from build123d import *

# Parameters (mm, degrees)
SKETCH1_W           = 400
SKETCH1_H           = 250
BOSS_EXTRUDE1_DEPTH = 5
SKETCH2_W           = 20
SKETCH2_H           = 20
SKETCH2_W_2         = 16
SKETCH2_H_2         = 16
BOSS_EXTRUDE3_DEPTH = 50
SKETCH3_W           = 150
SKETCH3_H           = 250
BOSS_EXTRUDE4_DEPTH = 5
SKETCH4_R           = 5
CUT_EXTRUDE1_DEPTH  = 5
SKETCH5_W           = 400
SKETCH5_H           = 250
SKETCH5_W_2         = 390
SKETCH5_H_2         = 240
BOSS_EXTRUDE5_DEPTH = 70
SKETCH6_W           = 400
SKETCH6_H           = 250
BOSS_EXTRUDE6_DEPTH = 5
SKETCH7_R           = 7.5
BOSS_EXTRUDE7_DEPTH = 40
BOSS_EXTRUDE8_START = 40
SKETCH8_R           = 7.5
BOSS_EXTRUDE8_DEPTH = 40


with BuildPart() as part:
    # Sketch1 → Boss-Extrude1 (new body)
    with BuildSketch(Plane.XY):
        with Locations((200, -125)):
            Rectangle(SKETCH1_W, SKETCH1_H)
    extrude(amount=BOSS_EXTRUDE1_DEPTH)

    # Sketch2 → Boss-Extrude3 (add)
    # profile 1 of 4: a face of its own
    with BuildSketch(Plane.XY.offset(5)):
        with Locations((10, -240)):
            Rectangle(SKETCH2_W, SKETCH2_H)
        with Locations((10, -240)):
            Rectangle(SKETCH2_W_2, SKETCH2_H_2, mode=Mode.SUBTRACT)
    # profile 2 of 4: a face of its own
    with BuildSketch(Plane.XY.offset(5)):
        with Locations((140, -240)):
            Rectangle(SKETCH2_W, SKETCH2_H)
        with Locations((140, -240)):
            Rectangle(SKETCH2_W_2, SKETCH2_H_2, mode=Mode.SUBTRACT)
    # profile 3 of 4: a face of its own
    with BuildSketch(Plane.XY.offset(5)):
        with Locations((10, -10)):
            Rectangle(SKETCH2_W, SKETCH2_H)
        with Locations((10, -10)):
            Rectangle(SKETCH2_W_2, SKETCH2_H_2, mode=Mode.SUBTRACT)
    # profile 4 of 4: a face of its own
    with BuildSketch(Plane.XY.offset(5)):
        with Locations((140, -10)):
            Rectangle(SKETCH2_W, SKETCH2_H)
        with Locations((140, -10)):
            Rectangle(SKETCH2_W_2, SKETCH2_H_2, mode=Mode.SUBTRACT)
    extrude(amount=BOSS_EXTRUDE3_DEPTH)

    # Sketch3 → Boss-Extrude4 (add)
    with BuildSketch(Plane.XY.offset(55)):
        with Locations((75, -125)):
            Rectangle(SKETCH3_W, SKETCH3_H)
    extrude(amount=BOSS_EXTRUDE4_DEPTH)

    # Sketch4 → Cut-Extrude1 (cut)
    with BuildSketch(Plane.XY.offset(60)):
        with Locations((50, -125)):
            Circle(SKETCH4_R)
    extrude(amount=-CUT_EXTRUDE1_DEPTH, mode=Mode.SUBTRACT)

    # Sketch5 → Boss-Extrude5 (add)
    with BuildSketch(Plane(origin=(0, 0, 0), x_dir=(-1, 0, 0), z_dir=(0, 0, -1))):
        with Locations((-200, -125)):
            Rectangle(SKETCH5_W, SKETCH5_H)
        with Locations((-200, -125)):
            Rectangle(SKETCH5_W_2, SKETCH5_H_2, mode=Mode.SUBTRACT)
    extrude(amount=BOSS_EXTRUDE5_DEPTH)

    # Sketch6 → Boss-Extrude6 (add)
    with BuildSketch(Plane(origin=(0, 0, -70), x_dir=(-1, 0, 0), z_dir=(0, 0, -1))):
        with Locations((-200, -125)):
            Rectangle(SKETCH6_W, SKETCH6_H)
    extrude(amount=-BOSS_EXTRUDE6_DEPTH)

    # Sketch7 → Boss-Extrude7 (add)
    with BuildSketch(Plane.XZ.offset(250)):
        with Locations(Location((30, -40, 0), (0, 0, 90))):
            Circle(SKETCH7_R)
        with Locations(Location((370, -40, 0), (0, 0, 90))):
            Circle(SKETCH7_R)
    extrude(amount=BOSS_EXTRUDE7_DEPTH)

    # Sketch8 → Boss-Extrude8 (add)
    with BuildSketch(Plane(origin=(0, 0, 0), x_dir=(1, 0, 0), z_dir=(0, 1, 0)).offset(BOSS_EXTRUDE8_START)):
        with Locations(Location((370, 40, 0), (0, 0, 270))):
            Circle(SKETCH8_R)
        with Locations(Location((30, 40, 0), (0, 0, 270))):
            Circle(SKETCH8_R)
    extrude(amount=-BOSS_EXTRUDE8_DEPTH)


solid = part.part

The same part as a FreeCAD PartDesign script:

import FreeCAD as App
import Part
import Sketcher


def add_polygon(sketch, points):
    """Adds a closed chain of lines whose ends are joined by coincident constraints."""
    first, n = sketch.GeometryCount, len(points)
    for a, b in zip(points, points[1:] + points[:1]):
        sketch.addGeometry(Part.LineSegment(App.Vector(*a, 0), App.Vector(*b, 0)), False)
    for i in range(n):
        sketch.addConstraint(Sketcher.Constraint("Coincident", first + i, 2, first + (i + 1) % n, 1))

doc = App.newDocument("Part")
body = doc.addObject("PartDesign::Body", "Body")

sketch1 = body.newObject("Sketcher::SketchObject", "Sketch")
sketch1.AttachmentSupport = (doc.getObject("XY_Plane"), [""])
sketch1.MapMode = "FlatFace"
add_polygon(sketch1, [(0, 0), (0, -250), (400, -250), (400, 0)])
sketch1.addConstraint(Sketcher.Constraint("Vertical", 0))
sketch1.addConstraint(Sketcher.Constraint("Horizontal", 1))
sketch1.addConstraint(Sketcher.Constraint("Vertical", 2))
sketch1.addConstraint(Sketcher.Constraint("Horizontal", 3))
sketch1.addConstraint(Sketcher.Constraint("Coincident", 3, 2, -1, 1))
sketch1.addConstraint(Sketcher.Constraint("DistanceX", 1, 1, 1, 2, 400.0))
sketch1.addConstraint(Sketcher.Constraint("DistanceY", 0, 2, 0, 1, 250.0))
pad1 = body.newObject("PartDesign::Pad", "Pad")
pad1.Profile = sketch1
pad1.Length = 5

sketch2 = body.newObject("Sketcher::SketchObject", "Sketch001")
sketch2.AttachmentSupport = (doc.getObject("XY_Plane"), [""])
sketch2.MapMode = "FlatFace"
sketch2.AttachmentOffset = App.Placement(App.Vector(0, 0, 5), App.Rotation())
add_polygon(sketch2, [(0, -230), (0, -250), (20, -250), (20, -230)])
add_polygon(sketch2, [(18, -248), (2, -248), (2, -232), (18, -232)])
add_polygon(sketch2, [(130, -230), (130, -250), (150, -250), (150, -230)])
add_polygon(sketch2, [(148, -248), (132, -248), (132, -232), (148, -232)])
add_polygon(sketch2, [(0, 0), (0, -20), (20, -20), (20, 0)])
add_polygon(sketch2, [(18, -18), (2, -18), (2, -2), (18, -2)])
add_polygon(sketch2, [(130, 0), (130, -20), (150, -20), (150, 0)])
add_polygon(sketch2, [(148, -18), (132, -18), (132, -2), (148, -2)])
sketch2.addConstraint(Sketcher.Constraint("Vertical", 0))
sketch2.addConstraint(Sketcher.Constraint("Horizontal", 1))
sketch2.addConstraint(Sketcher.Constraint("Vertical", 2))
sketch2.addConstraint(Sketcher.Constraint("Horizontal", 3))
sketch2.addConstraint(Sketcher.Constraint("Horizontal", 4))
sketch2.addConstraint(Sketcher.Constraint("Vertical", 5))
sketch2.addConstraint(Sketcher.Constraint("Horizontal", 6))
sketch2.addConstraint(Sketcher.Constraint("Vertical", 7))
sketch2.addConstraint(Sketcher.Constraint("Vertical", 8))
sketch2.addConstraint(Sketcher.Constraint("Horizontal", 9))
sketch2.addConstraint(Sketcher.Constraint("Vertical", 10))
sketch2.addConstraint(Sketcher.Constraint("Horizontal", 11))
sketch2.addConstraint(Sketcher.Constraint("Horizontal", 12))
sketch2.addConstraint(Sketcher.Constraint("Vertical", 13))
sketch2.addConstraint(Sketcher.Constraint("Horizontal", 14))
sketch2.addConstraint(Sketcher.Constraint("Vertical", 15))
sketch2.addConstraint(Sketcher.Constraint("Vertical", 16))
sketch2.addConstraint(Sketcher.Constraint("Horizontal", 17))
sketch2.addConstraint(Sketcher.Constraint("Vertical", 18))
sketch2.addConstraint(Sketcher.Constraint("Horizontal", 19))
sketch2.addConstraint(Sketcher.Constraint("Horizontal", 20))
sketch2.addConstraint(Sketcher.Constraint("Vertical", 21))
sketch2.addConstraint(Sketcher.Constraint("Horizontal", 22))
sketch2.addConstraint(Sketcher.Constraint("Vertical", 23))
sketch2.addConstraint(Sketcher.Constraint("Vertical", 24))
sketch2.addConstraint(Sketcher.Constraint("Horizontal", 25))
sketch2.addConstraint(Sketcher.Constraint("Vertical", 26))
sketch2.addConstraint(Sketcher.Constraint("Horizontal", 27))
sketch2.addConstraint(Sketcher.Constraint("Horizontal", 28))
sketch2.addConstraint(Sketcher.Constraint("Vertical", 29))
sketch2.addConstraint(Sketcher.Constraint("Horizontal", 30))
sketch2.addConstraint(Sketcher.Constraint("Vertical", 31))
sketch2.addConstraint(Sketcher.Constraint("Coincident", 19, 2, -1, 1))
sketch2.addConstraint(Sketcher.Constraint("PointOnObject", 0, 2, -2))
sketch2.addConstraint(Sketcher.Constraint("PointOnObject", 26, 2, -1))
sketch2.addConstraint(Sketcher.Constraint("Horizontal", 1, 2, 8, 2))
sketch2.addConstraint(Sketcher.Constraint("Horizontal", 3, 2, 10, 2))
sketch2.addConstraint(Sketcher.Constraint("Horizontal", 7, 2, 12, 2))
sketch2.addConstraint(Sketcher.Constraint("Horizontal", 6, 2, 13, 2))
sketch2.addConstraint(Sketcher.Constraint("Horizontal", 17, 2, 24, 2))
sketch2.addConstraint(Sketcher.Constraint("Horizontal", 23, 2, 28, 2))
sketch2.addConstraint(Sketcher.Constraint("Horizontal", 22, 2, 29, 2))
sketch2.addConstraint(Sketcher.Constraint("Vertical", 2, 2, 17, 2))
sketch2.addConstraint(Sketcher.Constraint("Vertical", 5, 2, 20, 2))
sketch2.addConstraint(Sketcher.Constraint("Vertical", 7, 2, 22, 2))
sketch2.addConstraint(Sketcher.Constraint("Vertical", 11, 2, 24, 2))
sketch2.addConstraint(Sketcher.Constraint("Vertical", 10, 2, 25, 2))
sketch2.addConstraint(Sketcher.Constraint("Vertical", 13, 2, 28, 2))
sketch2.addConstraint(Sketcher.Constraint("Vertical", 15, 2, 30, 2))
sketch2.addConstraint(Sketcher.Constraint("Equal", 3, 9))
sketch2.addConstraint(Sketcher.Constraint("Equal", 6, 12))
sketch2.addConstraint(Sketcher.Constraint("Equal", 27, 0))
sketch2.addConstraint(Sketcher.Constraint("Equal", 30, 5))
sketch2.addConstraint(Sketcher.Constraint("Equal", 10, 16))
sketch2.addConstraint(Sketcher.Constraint("Equal", 15, 21))
sketch2.addConstraint(Sketcher.Constraint("DistanceX", 1, 1, 1, 2, 20.0))
sketch2.addConstraint(Sketcher.Constraint("DistanceX", 4, 2, 4, 1, 16.0))
sketch2.addConstraint(Sketcher.Constraint("DistanceY", 0, 2, -1, 1, 250.0))
sketch2.addConstraint(Sketcher.Constraint("DistanceX", -1, 1, 4, 2, 2.0))
sketch2.addConstraint(Sketcher.Constraint("DistanceY", 4, 2, -1, 1, 248.0))
sketch2.addConstraint(Sketcher.Constraint("DistanceX", -1, 1, 8, 2, 130.0))
sketch2.addConstraint(Sketcher.Constraint("DistanceX", -1, 1, 12, 2, 132.0))
sketch2.addConstraint(Sketcher.Constraint("DistanceY", 20, 2, -1, 1, 18.0))
pad2 = body.newObject("PartDesign::Pad", "Pad001")
pad2.Profile = sketch2
pad2.Length = 50

sketch3 = body.newObject("Sketcher::SketchObject", "Sketch002")
sketch3.AttachmentSupport = (doc.getObject("XY_Plane"), [""])
sketch3.MapMode = "FlatFace"
sketch3.AttachmentOffset = App.Placement(App.Vector(0, 0, 55), App.Rotation())
add_polygon(sketch3, [(0, 0), (0, -250), (150, -250), (150, 0)])
sketch3.addConstraint(Sketcher.Constraint("Vertical", 0))
sketch3.addConstraint(Sketcher.Constraint("Horizontal", 1))
sketch3.addConstraint(Sketcher.Constraint("Vertical", 2))
sketch3.addConstraint(Sketcher.Constraint("Horizontal", 3))
sketch3.addConstraint(Sketcher.Constraint("Coincident", 3, 2, -1, 1))
sketch3.addConstraint(Sketcher.Constraint("DistanceX", 1, 1, 1, 2, 150.0))
sketch3.addConstraint(Sketcher.Constraint("DistanceY", 0, 2, 0, 1, 250.0))
pad3 = body.newObject("PartDesign::Pad", "Pad002")
pad3.Profile = sketch3
pad3.Length = 5

sketch4 = body.newObject("Sketcher::SketchObject", "Sketch003")
sketch4.AttachmentSupport = (doc.getObject("XY_Plane"), [""])
sketch4.MapMode = "FlatFace"
sketch4.AttachmentOffset = App.Placement(App.Vector(0, 0, 60), App.Rotation())
sketch4.addGeometry(Part.Circle(App.Vector(50, -125, 0), App.Vector(0, 0, 1), 5), False)
sketch4.addConstraint(Sketcher.Constraint("Diameter", 0, 10.0))
sketch4.addConstraint(Sketcher.Constraint("DistanceX", -1, 1, 0, 3, 50.0))
sketch4.addConstraint(Sketcher.Constraint("DistanceY", 0, 3, -1, 1, 125.0))
pocket1 = body.newObject("PartDesign::Pocket", "Pocket")
pocket1.Profile = sketch4
pocket1.Length = 5

sketch5 = body.newObject("Sketcher::SketchObject", "Sketch004")
sketch5.AttachmentSupport = (doc.getObject("XY_Plane"), [""])
sketch5.MapMode = "FlatFace"
add_polygon(sketch5, [(400, 0), (400, -250), (0, -250), (0, 0)])
add_polygon(sketch5, [(5, -245), (395, -245), (395, -5), (5, -5)])
sketch5.addConstraint(Sketcher.Constraint("Vertical", 0))
sketch5.addConstraint(Sketcher.Constraint("Horizontal", 1))
sketch5.addConstraint(Sketcher.Constraint("Vertical", 2))
sketch5.addConstraint(Sketcher.Constraint("Horizontal", 3))
sketch5.addConstraint(Sketcher.Constraint("Horizontal", 4))
sketch5.addConstraint(Sketcher.Constraint("Vertical", 5))
sketch5.addConstraint(Sketcher.Constraint("Horizontal", 6))
sketch5.addConstraint(Sketcher.Constraint("Vertical", 7))
sketch5.addConstraint(Sketcher.Constraint("Coincident", 2, 2, -1, 1))
sketch5.addConstraint(Sketcher.Constraint("DistanceX", 1, 2, 1, 1, 400.0))
sketch5.addConstraint(Sketcher.Constraint("DistanceX", 4, 1, 4, 2, 390.0))
sketch5.addConstraint(Sketcher.Constraint("DistanceY", 0, 2, 0, 1, 250.0))
sketch5.addConstraint(Sketcher.Constraint("DistanceY", 5, 1, 5, 2, 240.0))
sketch5.addConstraint(Sketcher.Constraint("DistanceX", -1, 1, 4, 2, 395.0))
sketch5.addConstraint(Sketcher.Constraint("DistanceY", 4, 2, -1, 1, 245.0))
pad4 = body.newObject("PartDesign::Pad", "Pad003")
pad4.Profile = sketch5
pad4.Length = 70
pad4.Reversed = True

sketch6 = body.newObject("Sketcher::SketchObject", "Sketch005")
sketch6.AttachmentSupport = (doc.getObject("XY_Plane"), [""])
sketch6.MapMode = "FlatFace"
sketch6.AttachmentOffset = App.Placement(App.Vector(0, 0, -70), App.Rotation())
add_polygon(sketch6, [(400, 0), (400, -250), (0, -250), (0, 0)])
sketch6.addConstraint(Sketcher.Constraint("Vertical", 0))
sketch6.addConstraint(Sketcher.Constraint("Horizontal", 1))
sketch6.addConstraint(Sketcher.Constraint("Vertical", 2))
sketch6.addConstraint(Sketcher.Constraint("Horizontal", 3))
sketch6.addConstraint(Sketcher.Constraint("Coincident", 2, 2, -1, 1))
sketch6.addConstraint(Sketcher.Constraint("DistanceX", 1, 2, 1, 1, 400.0))
sketch6.addConstraint(Sketcher.Constraint("DistanceY", 0, 2, 0, 1, 250.0))
pad5 = body.newObject("PartDesign::Pad", "Pad004")
pad5.Profile = sketch6
pad5.Length = 5

sketch7 = body.newObject("Sketcher::SketchObject", "Sketch006")
sketch7.AttachmentSupport = (doc.getObject("XZ_Plane"), [""])
sketch7.MapMode = "FlatFace"
sketch7.AttachmentOffset = App.Placement(App.Vector(0, 0, 250), App.Rotation())
sketch7.addGeometry(Part.Circle(App.Vector(30, -40, 0), App.Vector(0, 0, 1), 8), False)
sketch7.addGeometry(Part.Circle(App.Vector(370, -40, 0), App.Vector(0, 0, 1), 8), False)
sketch7.addConstraint(Sketcher.Constraint("Equal", 0, 1))
sketch7.addConstraint(Sketcher.Constraint("Horizontal", 0, 3, 1, 3))
sketch7.addConstraint(Sketcher.Constraint("Diameter", 0, 15.0))
sketch7.addConstraint(Sketcher.Constraint("DistanceX", -1, 1, 0, 3, 30.0))
sketch7.addConstraint(Sketcher.Constraint("DistanceY", 0, 3, -1, 1, 40.0))
sketch7.addConstraint(Sketcher.Constraint("DistanceX", -1, 1, 1, 3, 370.0))
pad6 = body.newObject("PartDesign::Pad", "Pad005")
pad6.Profile = sketch7
pad6.Length = 40

sketch8 = body.newObject("Sketcher::SketchObject", "Sketch007")
sketch8.AttachmentSupport = (doc.getObject("XZ_Plane"), [""])
sketch8.MapMode = "FlatFace"
sketch8.AttachmentOffset = App.Placement(App.Vector(0, 0, -40), App.Rotation())
sketch8.addGeometry(Part.Circle(App.Vector(370, -40, 0), App.Vector(0, 0, 1), 8), False)
sketch8.addGeometry(Part.Circle(App.Vector(30, -40, 0), App.Vector(0, 0, 1), 8), False)
sketch8.addConstraint(Sketcher.Constraint("Equal", 0, 1))
sketch8.addConstraint(Sketcher.Constraint("Horizontal", 0, 3, 1, 3))
sketch8.addConstraint(Sketcher.Constraint("Diameter", 0, 15.0))
sketch8.addConstraint(Sketcher.Constraint("DistanceX", -1, 1, 0, 3, 370.0))
sketch8.addConstraint(Sketcher.Constraint("DistanceY", 0, 3, -1, 1, 40.0))
sketch8.addConstraint(Sketcher.Constraint("DistanceX", -1, 1, 1, 3, 30.0))
pad7 = body.newObject("PartDesign::Pad", "Pad006")
pad7.Profile = sketch8
pad7.Length = 40

doc.recompute()
